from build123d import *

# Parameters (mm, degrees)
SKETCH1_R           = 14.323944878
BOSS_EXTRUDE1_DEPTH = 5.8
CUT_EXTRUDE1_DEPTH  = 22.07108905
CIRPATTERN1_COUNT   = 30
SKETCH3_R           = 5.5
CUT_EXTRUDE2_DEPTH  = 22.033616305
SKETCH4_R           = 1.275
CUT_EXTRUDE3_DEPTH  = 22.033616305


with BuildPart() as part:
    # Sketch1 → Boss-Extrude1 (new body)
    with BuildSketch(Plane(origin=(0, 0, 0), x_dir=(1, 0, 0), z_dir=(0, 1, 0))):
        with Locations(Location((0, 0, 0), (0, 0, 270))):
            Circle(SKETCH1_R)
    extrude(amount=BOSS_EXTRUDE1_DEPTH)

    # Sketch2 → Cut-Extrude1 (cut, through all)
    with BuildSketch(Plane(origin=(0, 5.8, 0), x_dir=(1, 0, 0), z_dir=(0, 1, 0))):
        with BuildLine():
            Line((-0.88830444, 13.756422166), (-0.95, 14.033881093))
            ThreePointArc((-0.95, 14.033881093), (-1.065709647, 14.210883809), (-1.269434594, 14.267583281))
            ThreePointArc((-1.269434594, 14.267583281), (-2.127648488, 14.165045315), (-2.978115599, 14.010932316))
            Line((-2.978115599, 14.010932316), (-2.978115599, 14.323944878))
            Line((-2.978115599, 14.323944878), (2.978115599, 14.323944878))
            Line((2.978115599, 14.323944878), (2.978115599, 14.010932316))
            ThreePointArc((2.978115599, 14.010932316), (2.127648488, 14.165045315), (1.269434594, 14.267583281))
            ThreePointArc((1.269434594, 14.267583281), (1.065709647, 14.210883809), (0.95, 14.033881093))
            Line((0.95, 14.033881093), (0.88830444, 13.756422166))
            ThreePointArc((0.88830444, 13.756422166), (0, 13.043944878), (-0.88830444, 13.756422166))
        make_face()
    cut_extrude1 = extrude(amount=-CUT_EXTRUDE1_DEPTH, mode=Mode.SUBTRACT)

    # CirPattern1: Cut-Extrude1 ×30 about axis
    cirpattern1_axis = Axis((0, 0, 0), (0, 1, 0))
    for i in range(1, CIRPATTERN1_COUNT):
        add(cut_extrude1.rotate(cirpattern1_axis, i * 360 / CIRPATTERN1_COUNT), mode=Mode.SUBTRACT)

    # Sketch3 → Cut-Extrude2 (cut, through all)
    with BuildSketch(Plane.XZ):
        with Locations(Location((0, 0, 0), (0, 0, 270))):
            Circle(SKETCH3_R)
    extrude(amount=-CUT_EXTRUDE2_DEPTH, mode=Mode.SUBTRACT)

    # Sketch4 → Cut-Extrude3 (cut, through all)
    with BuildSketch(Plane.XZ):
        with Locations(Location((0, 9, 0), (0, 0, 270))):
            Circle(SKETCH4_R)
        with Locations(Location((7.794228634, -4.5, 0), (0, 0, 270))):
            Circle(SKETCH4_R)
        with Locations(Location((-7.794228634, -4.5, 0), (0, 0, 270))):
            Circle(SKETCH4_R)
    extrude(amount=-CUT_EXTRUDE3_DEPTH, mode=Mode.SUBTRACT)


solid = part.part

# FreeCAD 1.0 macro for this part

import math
import FreeCAD as App
import Part
import Sketcher

V = App.Vector

doc = App.newDocument("Part")
body = doc.addObject("PartDesign::Body", "Body")

# Sketch on XZ plane
sketch1 = body.newObject("Sketcher::SketchObject", "Sketch")
sketch1.AttachmentSupport = (doc.getObject("XZ_Plane"), [""])
sketch1.MapMode = "FlatFace"
sketch1.addGeometry(Part.Circle(V(0, 0, 0), V(0, 0, 1), 14), False)
sketch1.addConstraint([
    Sketcher.Constraint("Coincident", 0, 3, -1, 1),
    Sketcher.Constraint("Diameter", 0, 28.64789),
])
pad1 = body.newObject("PartDesign::Pad", "Pad")
pad1.Profile = sketch1
pad1.Length = 5.8
pad1.Reversed = True

# Sketch on XZ plane
sketch2 = body.newObject("Sketcher::SketchObject", "Sketch001")
sketch2.AttachmentSupport = (doc.getObject("XZ_Plane"), [""])
sketch2.MapMode = "FlatFace"
sketch2.AttachmentOffset = App.Placement(V(0, 0, -5.8), App.Rotation())
sketch2.addGeometry([
    Part.LineSegment(V(-0.95, -14.03, 0), V(-0.89, -13.76, 0)),  # 0
    Part.ArcOfCircle(Part.Circle(V(0, -13.95, 0), V(0, 0, 1), 0.91), math.radians(13), math.radians(167)),  # 1
    Part.LineSegment(V(0.89, -13.76, 0), V(0.95, -14.03, 0)),  # 2
    Part.ArcOfCircle(Part.Circle(V(1.24, -13.97, 0), V(0, 0, 1), 0.3), math.radians(-167), math.radians(-85)),  # 3
    Part.ArcOfCircle(Part.Circle(V(0, 0, 0), V(0, 0, 1), 14.32), math.radians(-84.92), math.radians(-78)),  # 4
    Part.LineSegment(V(2.98, -14.01, 0), V(2.98, -14.32, 0)),  # 5
    Part.LineSegment(V(2.98, -14.32, 0), V(-2.98, -14.32, 0)),  # 6
    Part.LineSegment(V(-2.98, -14.32, 0), V(-2.98, -14.01, 0)),  # 7
    Part.ArcOfCircle(Part.Circle(V(0, 0, 0), V(0, 0, 1), 14.32), math.radians(-102), math.radians(-95.08)),  # 8
    Part.ArcOfCircle(Part.Circle(V(-1.24, -13.97, 0), V(0, 0, 1), 0.3), math.radians(-95), math.radians(-13)),  # 9
], False)
sketch2.addConstraint([
    Sketcher.Constraint("Tangent", 0, 2, 1, 2),
    Sketcher.Constraint("Tangent", 1, 1, 2, 1),
    Sketcher.Constraint("Tangent", 2, 2, 3, 1),
    Sketcher.Constraint("Tangent", 3, 2, 4, 1),
    Sketcher.Constraint("Coincident", 4, 2, 5, 1),
    Sketcher.Constraint("Coincident", 5, 2, 6, 1),
    Sketcher.Constraint("Coincident", 6, 2, 7, 1),
    Sketcher.Constraint("Coincident", 7, 2, 8, 1),
    Sketcher.Constraint("Tangent", 8, 2, 9, 1),
    Sketcher.Constraint("Tangent", 9, 2, 0, 1),
    Sketcher.Constraint("Vertical", 5),
    Sketcher.Constraint("Horizontal", 6),
    Sketcher.Constraint("Vertical", 7),
    Sketcher.Constraint("Coincident", 4, 3, -1, 1),
    Sketcher.Constraint("Coincident", 8, 3, -1, 1),
    Sketcher.Constraint("Equal", 4, 8),
    Sketcher.Constraint("Equal", 3, 9),
    Sketcher.Constraint("Symmetric", 0, 2, 1, 1, -2),
    Sketcher.Constraint("Horizontal", 4, 2, 7, 2),
    Sketcher.Constraint("Radius", 3, 0.3),
    Sketcher.Constraint("Radius", 1, 0.91),
    Sketcher.Constraint("DistanceX", -1, 1, 2, 2, 0.95),
    Sketcher.Constraint("DistanceY", 6, 2, 1, 3, 0.37),
    Sketcher.Constraint("Radius", 4, 14.323945),
    Sketcher.Constraint("DistanceX", 6, 2, 6, 1, 5.956231),
    Sketcher.Constraint("DistanceY", 5, 2, 5, 1, 0.313013),
])
pocket1 = body.newObject("PartDesign::Pocket", "Pocket")
pocket1.Profile = sketch2
pocket1.Type = "ThroughAll"
pocket1.Reversed = True
doc.recompute()

polarpattern = body.newObject("PartDesign::PolarPattern", "PolarPattern")
polarpattern.Originals = [pocket1]
polarpattern.Axis = (doc.getObject("Y_Axis"), [""])
polarpattern.Angle = 360
polarpattern.Occurrences = 30
body.Tip = polarpattern

# Sketch on XZ plane
sketch3 = body.newObject("Sketcher::SketchObject", "Sketch002")
sketch3.AttachmentSupport = (doc.getObject("XZ_Plane"), [""])
sketch3.MapMode = "FlatFace"
sketch3.addGeometry(Part.Circle(V(0, 0, 0), V(0, 0, 1), 6), False)
sketch3.addConstraint([
    Sketcher.Constraint("Coincident", 0, 3, -1, 1),
    Sketcher.Constraint("Diameter", 0, 11.0),
])
pocket2 = body.newObject("PartDesign::Pocket", "Pocket001")
pocket2.Profile = sketch3
pocket2.Type = "ThroughAll"

# Sketch on XZ plane
sketch4 = body.newObject("Sketcher::SketchObject", "Sketch003")
sketch4.AttachmentSupport = (doc.getObject("XZ_Plane"), [""])
sketch4.MapMode = "FlatFace"
sketch4.addGeometry([
    Part.Circle(V(0, 9, 0), V(0, 0, 1), 1.3),
    Part.Circle(V(7.8, -4.5, 0), V(0, 0, 1), 1.3),
    Part.Circle(V(-7.8, -4.5, 0), V(0, 0, 1), 1.3),
], False)
sketch4.addConstraint([
    Sketcher.Constraint("Equal", 0, 1),
    Sketcher.Constraint("Equal", 1, 2),
    Sketcher.Constraint("Symmetric", 1, 3, 2, 3, -2),
    Sketcher.Constraint("PointOnObject", 0, 3, -2),
    Sketcher.Constraint("Diameter", 0, 2.55),
    Sketcher.Constraint("DistanceY", -1, 1, 0, 3, 9.0),
    Sketcher.Constraint("DistanceY", 1, 3, -1, 1, 4.5),
    Sketcher.Constraint("DistanceX", -1, 1, 1, 3, 7.794229),
])
pocket3 = body.newObject("PartDesign::Pocket", "Pocket002")
pocket3.Profile = sketch4
pocket3.Type = "ThroughAll"

doc.recompute()
